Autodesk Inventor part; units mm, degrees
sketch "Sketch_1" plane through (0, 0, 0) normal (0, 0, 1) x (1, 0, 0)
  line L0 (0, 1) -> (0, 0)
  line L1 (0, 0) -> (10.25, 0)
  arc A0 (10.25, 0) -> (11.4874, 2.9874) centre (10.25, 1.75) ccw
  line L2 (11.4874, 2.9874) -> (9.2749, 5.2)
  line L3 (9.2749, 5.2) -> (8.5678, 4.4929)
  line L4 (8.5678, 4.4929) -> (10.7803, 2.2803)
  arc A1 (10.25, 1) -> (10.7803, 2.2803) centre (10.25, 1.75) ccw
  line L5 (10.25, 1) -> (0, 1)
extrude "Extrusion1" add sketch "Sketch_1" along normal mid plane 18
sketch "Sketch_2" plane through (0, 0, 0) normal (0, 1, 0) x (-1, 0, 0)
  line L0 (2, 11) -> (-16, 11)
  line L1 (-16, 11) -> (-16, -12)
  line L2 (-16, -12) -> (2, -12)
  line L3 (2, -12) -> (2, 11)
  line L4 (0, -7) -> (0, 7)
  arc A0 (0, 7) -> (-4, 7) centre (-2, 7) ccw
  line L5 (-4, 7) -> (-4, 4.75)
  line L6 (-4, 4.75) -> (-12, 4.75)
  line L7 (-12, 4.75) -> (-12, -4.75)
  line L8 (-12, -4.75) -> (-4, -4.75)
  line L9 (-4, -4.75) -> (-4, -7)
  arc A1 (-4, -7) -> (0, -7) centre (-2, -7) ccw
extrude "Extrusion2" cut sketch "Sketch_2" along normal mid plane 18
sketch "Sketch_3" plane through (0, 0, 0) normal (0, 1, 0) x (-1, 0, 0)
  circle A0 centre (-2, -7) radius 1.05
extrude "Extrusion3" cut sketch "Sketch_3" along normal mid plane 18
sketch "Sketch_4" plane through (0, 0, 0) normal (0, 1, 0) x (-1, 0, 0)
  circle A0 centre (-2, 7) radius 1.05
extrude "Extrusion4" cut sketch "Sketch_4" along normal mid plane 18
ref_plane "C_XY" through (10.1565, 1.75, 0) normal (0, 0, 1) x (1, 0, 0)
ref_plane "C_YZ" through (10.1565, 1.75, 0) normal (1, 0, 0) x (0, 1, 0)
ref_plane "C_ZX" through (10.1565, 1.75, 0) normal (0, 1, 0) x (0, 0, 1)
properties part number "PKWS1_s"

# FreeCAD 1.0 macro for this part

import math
import FreeCAD as App
import Part
import Sketcher

V = App.Vector
Q = App.Units.Quantity


def add_polygon(sketch, points):
    """Adds a closed chain of lines whose ends are joined by coincident constraints."""
    first, n = sketch.GeometryCount, len(points)
    for a, b in zip(points, points[1:] + points[:1]):
        sketch.addGeometry(Part.LineSegment(App.Vector(*a, 0), App.Vector(*b, 0)), False)
    for i in range(n):
        sketch.addConstraint(Sketcher.Constraint("Coincident", first + i, 2, first + (i + 1) % n, 1))

doc = App.newDocument("Part")
body = doc.addObject("PartDesign::Body", "Body")

# Sketch on XY plane
sketch1 = body.newObject("Sketcher::SketchObject", "Sketch")
sketch1.AttachmentSupport = (doc.getObject("XY_Plane"), [""])
sketch1.MapMode = "FlatFace"
sketch1.addGeometry([
    Part.LineSegment(V(10.2, 1, 0), V(0, 1, 0)),  # 0
    Part.LineSegment(V(0, 1, 0), V(0, 0, 0)),  # 1
    Part.LineSegment(V(0, 0, 0), V(10.2, 0, 0)),  # 2
    Part.ArcOfCircle(Part.Circle(V(10.2, 1.8, 0), V(0, 0, 1), 1.8), math.radians(-90), math.radians(45)),  # 3
    Part.LineSegment(V(11.5, 3, 0), V(9.3, 5.2, 0)),  # 4
    Part.LineSegment(V(9.3, 5.2, 0), V(8.6, 4.5, 0)),  # 5
    Part.LineSegment(V(8.6, 4.5, 0), V(10.8, 2.3, 0)),  # 6
    Part.ArcOfCircle(Part.Circle(V(10.2, 1.8, 0), V(0, 0, 1), 0.8), math.radians(-90), math.radians(45)),  # 7
], False)
sketch1.addConstraint([
    Sketcher.Constraint("Coincident", 0, 2, 1, 1),
    Sketcher.Constraint("Coincident", 1, 2, 2, 1),
    Sketcher.Constraint("Tangent", 2, 2, 3, 1),
    Sketcher.Constraint("Tangent", 3, 2, 4, 1),
    Sketcher.Constraint("Coincident", 4, 2, 5, 1),
    Sketcher.Constraint("Coincident", 5, 2, 6, 1),
    Sketcher.Constraint("Tangent", 6, 2, 7, 2),
    Sketcher.Constraint("Tangent", 7, 1, 0, 1),
    Sketcher.Constraint("Horizontal", 0),
    Sketcher.Constraint("Vertical", 1),
    Sketcher.Constraint("Horizontal", 2),
    Sketcher.Constraint("Coincident", 1, 2, -1, 1),
    Sketcher.Constraint("Coincident", 7, 3, 3, 3),
    Sketcher.Constraint("Perpendicular", 4, 5),
    Sketcher.Constraint("Perpendicular", 5, 6),
    Sketcher.Constraint("DistanceY", 1, 2, 1, 1, 1.0),
    Sketcher.Constraint("Angle", 5, Q("-135 deg")),
    Sketcher.Constraint("Radius", 3, 1.75),
    Sketcher.Constraint("DistanceX", 0, 2, 0, 1, 10.25),
    Sketcher.Constraint("DistanceY", -1, 1, 4, 2, 5.2),
])
pad1 = body.newObject("PartDesign::Pad", "Pad")
pad1.Profile = sketch1
pad1.Length = 18
pad1.Midplane = True

# Sketch on XZ plane
sketch2 = body.newObject("Sketcher::SketchObject", "Sketch001")
sketch2.AttachmentSupport = (doc.getObject("XZ_Plane"), [""])
sketch2.MapMode = "FlatFace"
add_polygon(sketch2, [(-2, -12), (-2, 11), (16, 11), (16, -12)])  # lines 0-3
sketch2.addGeometry(Part.LineSegment(V(0, 7, 0), V(0, -7, 0)), False)  # 4
sketch2.addGeometry(Part.ArcOfCircle(Part.Circle(V(2, -7, 0), V(0, 0, 1), 2), math.radians(180), math.radians(360)), False)  # 5
sketch2.addGeometry(Part.LineSegment(V(4, -7, 0), V(4, -4.8, 0)), False)  # 6
sketch2.addGeometry(Part.LineSegment(V(4, -4.8, 0), V(12, -4.8, 0)), False)  # 7
sketch2.addGeometry(Part.LineSegment(V(12, -4.8, 0), V(12, 4.8, 0)), False)  # 8
sketch2.addGeometry(Part.LineSegment(V(12, 4.8, 0), V(4, 4.8, 0)), False)  # 9
sketch2.addGeometry(Part.LineSegment(V(4, 4.8, 0), V(4, 7, 0)), False)  # 10
sketch2.addGeometry(Part.ArcOfCircle(Part.Circle(V(2, 7, 0), V(0, 0, 1), 2), math.radians(0), math.radians(180)), False)  # 11
sketch2.addConstraint([
    Sketcher.Constraint("Tangent", 4, 2, 5, 1),
    Sketcher.Constraint("Tangent", 5, 2, 6, 1),
    Sketcher.Constraint("Coincident", 6, 2, 7, 1),
    Sketcher.Constraint("Coincident", 7, 2, 8, 1),
    Sketcher.Constraint("Coincident", 8, 2, 9, 1),
    Sketcher.Constraint("Coincident", 9, 2, 10, 1),
    Sketcher.Constraint("Tangent", 10, 2, 11, 1),
    Sketcher.Constraint("Tangent", 11, 2, 4, 1),
    Sketcher.Constraint("Vertical", 0),
    Sketcher.Constraint("Horizontal", 1),
    Sketcher.Constraint("Vertical", 2),
    Sketcher.Constraint("Horizontal", 3),
    Sketcher.Constraint("Vertical", 4),
    Sketcher.Constraint("Vertical", 6),
    Sketcher.Constraint("Horizontal", 7),
    Sketcher.Constraint("Vertical", 8),
    Sketcher.Constraint("Horizontal", 9),
    Sketcher.Constraint("Vertical", 10),
    Sketcher.Constraint("Equal", 5, 11),
    Sketcher.Constraint("Symmetric", 4, 2, 11, 2, -1, 1),
    Sketcher.Constraint("Equal", 6, 10),
    Sketcher.Constraint("Radius", 5, 2.0),
    Sketcher.Constraint("DistanceX", 1, 1, 1, 2, 18.0),
    Sketcher.Constraint("DistanceX", 7, 1, 7, 2, 8.0),
    Sketcher.Constraint("DistanceY", 0, 1, 0, 2, 23.0),
    Sketcher.Constraint("DistanceY", 4, 2, 4, 1, 14.0),
    Sketcher.Constraint("DistanceY", 8, 1, 8, 2, 9.5),
    Sketcher.Constraint("DistanceX", 0, 2, -1, 1, 2.0),
    Sketcher.Constraint("DistanceY", -1, 1, 0, 2, 11.0),
])
pocket1 = body.newObject("PartDesign::Pocket", "Pocket")
pocket1.Profile = sketch2
pocket1.Length = 18
pocket1.Midplane = True

# Sketch on XZ plane
sketch3 = body.newObject("Sketcher::SketchObject", "Sketch002")
sketch3.AttachmentSupport = (doc.getObject("XZ_Plane"), [""])
sketch3.MapMode = "FlatFace"
sketch3.addGeometry(Part.Circle(V(2, -7, 0), V(0, 0, 1), 1.1), False)
sketch3.addConstraint([
    Sketcher.Constraint("Diameter", 0, 2.1),
    Sketcher.Constraint("DistanceX", -1, 1, 0, 3, 2.0),
    Sketcher.Constraint("DistanceY", 0, 3, -1, 1, 7.0),
])
pocket2 = body.newObject("PartDesign::Pocket", "Pocket001")
pocket2.Profile = sketch3
pocket2.Length = 18
pocket2.Midplane = True

# Sketch on XZ plane
sketch4 = body.newObject("Sketcher::SketchObject", "Sketch003")
sketch4.AttachmentSupport = (doc.getObject("XZ_Plane"), [""])
sketch4.MapMode = "FlatFace"
sketch4.addGeometry(Part.Circle(V(2, 7, 0), V(0, 0, 1), 1.1), False)
sketch4.addConstraint([
    Sketcher.Constraint("Diameter", 0, 2.1),
    Sketcher.Constraint("DistanceX", -1, 1, 0, 3, 2.0),
    Sketcher.Constraint("DistanceY", -1, 1, 0, 3, 7.0),
])
pocket3 = body.newObject("PartDesign::Pocket", "Pocket002")
pocket3.Profile = sketch4
pocket3.Length = 18
pocket3.Midplane = True

doc.recompute()
